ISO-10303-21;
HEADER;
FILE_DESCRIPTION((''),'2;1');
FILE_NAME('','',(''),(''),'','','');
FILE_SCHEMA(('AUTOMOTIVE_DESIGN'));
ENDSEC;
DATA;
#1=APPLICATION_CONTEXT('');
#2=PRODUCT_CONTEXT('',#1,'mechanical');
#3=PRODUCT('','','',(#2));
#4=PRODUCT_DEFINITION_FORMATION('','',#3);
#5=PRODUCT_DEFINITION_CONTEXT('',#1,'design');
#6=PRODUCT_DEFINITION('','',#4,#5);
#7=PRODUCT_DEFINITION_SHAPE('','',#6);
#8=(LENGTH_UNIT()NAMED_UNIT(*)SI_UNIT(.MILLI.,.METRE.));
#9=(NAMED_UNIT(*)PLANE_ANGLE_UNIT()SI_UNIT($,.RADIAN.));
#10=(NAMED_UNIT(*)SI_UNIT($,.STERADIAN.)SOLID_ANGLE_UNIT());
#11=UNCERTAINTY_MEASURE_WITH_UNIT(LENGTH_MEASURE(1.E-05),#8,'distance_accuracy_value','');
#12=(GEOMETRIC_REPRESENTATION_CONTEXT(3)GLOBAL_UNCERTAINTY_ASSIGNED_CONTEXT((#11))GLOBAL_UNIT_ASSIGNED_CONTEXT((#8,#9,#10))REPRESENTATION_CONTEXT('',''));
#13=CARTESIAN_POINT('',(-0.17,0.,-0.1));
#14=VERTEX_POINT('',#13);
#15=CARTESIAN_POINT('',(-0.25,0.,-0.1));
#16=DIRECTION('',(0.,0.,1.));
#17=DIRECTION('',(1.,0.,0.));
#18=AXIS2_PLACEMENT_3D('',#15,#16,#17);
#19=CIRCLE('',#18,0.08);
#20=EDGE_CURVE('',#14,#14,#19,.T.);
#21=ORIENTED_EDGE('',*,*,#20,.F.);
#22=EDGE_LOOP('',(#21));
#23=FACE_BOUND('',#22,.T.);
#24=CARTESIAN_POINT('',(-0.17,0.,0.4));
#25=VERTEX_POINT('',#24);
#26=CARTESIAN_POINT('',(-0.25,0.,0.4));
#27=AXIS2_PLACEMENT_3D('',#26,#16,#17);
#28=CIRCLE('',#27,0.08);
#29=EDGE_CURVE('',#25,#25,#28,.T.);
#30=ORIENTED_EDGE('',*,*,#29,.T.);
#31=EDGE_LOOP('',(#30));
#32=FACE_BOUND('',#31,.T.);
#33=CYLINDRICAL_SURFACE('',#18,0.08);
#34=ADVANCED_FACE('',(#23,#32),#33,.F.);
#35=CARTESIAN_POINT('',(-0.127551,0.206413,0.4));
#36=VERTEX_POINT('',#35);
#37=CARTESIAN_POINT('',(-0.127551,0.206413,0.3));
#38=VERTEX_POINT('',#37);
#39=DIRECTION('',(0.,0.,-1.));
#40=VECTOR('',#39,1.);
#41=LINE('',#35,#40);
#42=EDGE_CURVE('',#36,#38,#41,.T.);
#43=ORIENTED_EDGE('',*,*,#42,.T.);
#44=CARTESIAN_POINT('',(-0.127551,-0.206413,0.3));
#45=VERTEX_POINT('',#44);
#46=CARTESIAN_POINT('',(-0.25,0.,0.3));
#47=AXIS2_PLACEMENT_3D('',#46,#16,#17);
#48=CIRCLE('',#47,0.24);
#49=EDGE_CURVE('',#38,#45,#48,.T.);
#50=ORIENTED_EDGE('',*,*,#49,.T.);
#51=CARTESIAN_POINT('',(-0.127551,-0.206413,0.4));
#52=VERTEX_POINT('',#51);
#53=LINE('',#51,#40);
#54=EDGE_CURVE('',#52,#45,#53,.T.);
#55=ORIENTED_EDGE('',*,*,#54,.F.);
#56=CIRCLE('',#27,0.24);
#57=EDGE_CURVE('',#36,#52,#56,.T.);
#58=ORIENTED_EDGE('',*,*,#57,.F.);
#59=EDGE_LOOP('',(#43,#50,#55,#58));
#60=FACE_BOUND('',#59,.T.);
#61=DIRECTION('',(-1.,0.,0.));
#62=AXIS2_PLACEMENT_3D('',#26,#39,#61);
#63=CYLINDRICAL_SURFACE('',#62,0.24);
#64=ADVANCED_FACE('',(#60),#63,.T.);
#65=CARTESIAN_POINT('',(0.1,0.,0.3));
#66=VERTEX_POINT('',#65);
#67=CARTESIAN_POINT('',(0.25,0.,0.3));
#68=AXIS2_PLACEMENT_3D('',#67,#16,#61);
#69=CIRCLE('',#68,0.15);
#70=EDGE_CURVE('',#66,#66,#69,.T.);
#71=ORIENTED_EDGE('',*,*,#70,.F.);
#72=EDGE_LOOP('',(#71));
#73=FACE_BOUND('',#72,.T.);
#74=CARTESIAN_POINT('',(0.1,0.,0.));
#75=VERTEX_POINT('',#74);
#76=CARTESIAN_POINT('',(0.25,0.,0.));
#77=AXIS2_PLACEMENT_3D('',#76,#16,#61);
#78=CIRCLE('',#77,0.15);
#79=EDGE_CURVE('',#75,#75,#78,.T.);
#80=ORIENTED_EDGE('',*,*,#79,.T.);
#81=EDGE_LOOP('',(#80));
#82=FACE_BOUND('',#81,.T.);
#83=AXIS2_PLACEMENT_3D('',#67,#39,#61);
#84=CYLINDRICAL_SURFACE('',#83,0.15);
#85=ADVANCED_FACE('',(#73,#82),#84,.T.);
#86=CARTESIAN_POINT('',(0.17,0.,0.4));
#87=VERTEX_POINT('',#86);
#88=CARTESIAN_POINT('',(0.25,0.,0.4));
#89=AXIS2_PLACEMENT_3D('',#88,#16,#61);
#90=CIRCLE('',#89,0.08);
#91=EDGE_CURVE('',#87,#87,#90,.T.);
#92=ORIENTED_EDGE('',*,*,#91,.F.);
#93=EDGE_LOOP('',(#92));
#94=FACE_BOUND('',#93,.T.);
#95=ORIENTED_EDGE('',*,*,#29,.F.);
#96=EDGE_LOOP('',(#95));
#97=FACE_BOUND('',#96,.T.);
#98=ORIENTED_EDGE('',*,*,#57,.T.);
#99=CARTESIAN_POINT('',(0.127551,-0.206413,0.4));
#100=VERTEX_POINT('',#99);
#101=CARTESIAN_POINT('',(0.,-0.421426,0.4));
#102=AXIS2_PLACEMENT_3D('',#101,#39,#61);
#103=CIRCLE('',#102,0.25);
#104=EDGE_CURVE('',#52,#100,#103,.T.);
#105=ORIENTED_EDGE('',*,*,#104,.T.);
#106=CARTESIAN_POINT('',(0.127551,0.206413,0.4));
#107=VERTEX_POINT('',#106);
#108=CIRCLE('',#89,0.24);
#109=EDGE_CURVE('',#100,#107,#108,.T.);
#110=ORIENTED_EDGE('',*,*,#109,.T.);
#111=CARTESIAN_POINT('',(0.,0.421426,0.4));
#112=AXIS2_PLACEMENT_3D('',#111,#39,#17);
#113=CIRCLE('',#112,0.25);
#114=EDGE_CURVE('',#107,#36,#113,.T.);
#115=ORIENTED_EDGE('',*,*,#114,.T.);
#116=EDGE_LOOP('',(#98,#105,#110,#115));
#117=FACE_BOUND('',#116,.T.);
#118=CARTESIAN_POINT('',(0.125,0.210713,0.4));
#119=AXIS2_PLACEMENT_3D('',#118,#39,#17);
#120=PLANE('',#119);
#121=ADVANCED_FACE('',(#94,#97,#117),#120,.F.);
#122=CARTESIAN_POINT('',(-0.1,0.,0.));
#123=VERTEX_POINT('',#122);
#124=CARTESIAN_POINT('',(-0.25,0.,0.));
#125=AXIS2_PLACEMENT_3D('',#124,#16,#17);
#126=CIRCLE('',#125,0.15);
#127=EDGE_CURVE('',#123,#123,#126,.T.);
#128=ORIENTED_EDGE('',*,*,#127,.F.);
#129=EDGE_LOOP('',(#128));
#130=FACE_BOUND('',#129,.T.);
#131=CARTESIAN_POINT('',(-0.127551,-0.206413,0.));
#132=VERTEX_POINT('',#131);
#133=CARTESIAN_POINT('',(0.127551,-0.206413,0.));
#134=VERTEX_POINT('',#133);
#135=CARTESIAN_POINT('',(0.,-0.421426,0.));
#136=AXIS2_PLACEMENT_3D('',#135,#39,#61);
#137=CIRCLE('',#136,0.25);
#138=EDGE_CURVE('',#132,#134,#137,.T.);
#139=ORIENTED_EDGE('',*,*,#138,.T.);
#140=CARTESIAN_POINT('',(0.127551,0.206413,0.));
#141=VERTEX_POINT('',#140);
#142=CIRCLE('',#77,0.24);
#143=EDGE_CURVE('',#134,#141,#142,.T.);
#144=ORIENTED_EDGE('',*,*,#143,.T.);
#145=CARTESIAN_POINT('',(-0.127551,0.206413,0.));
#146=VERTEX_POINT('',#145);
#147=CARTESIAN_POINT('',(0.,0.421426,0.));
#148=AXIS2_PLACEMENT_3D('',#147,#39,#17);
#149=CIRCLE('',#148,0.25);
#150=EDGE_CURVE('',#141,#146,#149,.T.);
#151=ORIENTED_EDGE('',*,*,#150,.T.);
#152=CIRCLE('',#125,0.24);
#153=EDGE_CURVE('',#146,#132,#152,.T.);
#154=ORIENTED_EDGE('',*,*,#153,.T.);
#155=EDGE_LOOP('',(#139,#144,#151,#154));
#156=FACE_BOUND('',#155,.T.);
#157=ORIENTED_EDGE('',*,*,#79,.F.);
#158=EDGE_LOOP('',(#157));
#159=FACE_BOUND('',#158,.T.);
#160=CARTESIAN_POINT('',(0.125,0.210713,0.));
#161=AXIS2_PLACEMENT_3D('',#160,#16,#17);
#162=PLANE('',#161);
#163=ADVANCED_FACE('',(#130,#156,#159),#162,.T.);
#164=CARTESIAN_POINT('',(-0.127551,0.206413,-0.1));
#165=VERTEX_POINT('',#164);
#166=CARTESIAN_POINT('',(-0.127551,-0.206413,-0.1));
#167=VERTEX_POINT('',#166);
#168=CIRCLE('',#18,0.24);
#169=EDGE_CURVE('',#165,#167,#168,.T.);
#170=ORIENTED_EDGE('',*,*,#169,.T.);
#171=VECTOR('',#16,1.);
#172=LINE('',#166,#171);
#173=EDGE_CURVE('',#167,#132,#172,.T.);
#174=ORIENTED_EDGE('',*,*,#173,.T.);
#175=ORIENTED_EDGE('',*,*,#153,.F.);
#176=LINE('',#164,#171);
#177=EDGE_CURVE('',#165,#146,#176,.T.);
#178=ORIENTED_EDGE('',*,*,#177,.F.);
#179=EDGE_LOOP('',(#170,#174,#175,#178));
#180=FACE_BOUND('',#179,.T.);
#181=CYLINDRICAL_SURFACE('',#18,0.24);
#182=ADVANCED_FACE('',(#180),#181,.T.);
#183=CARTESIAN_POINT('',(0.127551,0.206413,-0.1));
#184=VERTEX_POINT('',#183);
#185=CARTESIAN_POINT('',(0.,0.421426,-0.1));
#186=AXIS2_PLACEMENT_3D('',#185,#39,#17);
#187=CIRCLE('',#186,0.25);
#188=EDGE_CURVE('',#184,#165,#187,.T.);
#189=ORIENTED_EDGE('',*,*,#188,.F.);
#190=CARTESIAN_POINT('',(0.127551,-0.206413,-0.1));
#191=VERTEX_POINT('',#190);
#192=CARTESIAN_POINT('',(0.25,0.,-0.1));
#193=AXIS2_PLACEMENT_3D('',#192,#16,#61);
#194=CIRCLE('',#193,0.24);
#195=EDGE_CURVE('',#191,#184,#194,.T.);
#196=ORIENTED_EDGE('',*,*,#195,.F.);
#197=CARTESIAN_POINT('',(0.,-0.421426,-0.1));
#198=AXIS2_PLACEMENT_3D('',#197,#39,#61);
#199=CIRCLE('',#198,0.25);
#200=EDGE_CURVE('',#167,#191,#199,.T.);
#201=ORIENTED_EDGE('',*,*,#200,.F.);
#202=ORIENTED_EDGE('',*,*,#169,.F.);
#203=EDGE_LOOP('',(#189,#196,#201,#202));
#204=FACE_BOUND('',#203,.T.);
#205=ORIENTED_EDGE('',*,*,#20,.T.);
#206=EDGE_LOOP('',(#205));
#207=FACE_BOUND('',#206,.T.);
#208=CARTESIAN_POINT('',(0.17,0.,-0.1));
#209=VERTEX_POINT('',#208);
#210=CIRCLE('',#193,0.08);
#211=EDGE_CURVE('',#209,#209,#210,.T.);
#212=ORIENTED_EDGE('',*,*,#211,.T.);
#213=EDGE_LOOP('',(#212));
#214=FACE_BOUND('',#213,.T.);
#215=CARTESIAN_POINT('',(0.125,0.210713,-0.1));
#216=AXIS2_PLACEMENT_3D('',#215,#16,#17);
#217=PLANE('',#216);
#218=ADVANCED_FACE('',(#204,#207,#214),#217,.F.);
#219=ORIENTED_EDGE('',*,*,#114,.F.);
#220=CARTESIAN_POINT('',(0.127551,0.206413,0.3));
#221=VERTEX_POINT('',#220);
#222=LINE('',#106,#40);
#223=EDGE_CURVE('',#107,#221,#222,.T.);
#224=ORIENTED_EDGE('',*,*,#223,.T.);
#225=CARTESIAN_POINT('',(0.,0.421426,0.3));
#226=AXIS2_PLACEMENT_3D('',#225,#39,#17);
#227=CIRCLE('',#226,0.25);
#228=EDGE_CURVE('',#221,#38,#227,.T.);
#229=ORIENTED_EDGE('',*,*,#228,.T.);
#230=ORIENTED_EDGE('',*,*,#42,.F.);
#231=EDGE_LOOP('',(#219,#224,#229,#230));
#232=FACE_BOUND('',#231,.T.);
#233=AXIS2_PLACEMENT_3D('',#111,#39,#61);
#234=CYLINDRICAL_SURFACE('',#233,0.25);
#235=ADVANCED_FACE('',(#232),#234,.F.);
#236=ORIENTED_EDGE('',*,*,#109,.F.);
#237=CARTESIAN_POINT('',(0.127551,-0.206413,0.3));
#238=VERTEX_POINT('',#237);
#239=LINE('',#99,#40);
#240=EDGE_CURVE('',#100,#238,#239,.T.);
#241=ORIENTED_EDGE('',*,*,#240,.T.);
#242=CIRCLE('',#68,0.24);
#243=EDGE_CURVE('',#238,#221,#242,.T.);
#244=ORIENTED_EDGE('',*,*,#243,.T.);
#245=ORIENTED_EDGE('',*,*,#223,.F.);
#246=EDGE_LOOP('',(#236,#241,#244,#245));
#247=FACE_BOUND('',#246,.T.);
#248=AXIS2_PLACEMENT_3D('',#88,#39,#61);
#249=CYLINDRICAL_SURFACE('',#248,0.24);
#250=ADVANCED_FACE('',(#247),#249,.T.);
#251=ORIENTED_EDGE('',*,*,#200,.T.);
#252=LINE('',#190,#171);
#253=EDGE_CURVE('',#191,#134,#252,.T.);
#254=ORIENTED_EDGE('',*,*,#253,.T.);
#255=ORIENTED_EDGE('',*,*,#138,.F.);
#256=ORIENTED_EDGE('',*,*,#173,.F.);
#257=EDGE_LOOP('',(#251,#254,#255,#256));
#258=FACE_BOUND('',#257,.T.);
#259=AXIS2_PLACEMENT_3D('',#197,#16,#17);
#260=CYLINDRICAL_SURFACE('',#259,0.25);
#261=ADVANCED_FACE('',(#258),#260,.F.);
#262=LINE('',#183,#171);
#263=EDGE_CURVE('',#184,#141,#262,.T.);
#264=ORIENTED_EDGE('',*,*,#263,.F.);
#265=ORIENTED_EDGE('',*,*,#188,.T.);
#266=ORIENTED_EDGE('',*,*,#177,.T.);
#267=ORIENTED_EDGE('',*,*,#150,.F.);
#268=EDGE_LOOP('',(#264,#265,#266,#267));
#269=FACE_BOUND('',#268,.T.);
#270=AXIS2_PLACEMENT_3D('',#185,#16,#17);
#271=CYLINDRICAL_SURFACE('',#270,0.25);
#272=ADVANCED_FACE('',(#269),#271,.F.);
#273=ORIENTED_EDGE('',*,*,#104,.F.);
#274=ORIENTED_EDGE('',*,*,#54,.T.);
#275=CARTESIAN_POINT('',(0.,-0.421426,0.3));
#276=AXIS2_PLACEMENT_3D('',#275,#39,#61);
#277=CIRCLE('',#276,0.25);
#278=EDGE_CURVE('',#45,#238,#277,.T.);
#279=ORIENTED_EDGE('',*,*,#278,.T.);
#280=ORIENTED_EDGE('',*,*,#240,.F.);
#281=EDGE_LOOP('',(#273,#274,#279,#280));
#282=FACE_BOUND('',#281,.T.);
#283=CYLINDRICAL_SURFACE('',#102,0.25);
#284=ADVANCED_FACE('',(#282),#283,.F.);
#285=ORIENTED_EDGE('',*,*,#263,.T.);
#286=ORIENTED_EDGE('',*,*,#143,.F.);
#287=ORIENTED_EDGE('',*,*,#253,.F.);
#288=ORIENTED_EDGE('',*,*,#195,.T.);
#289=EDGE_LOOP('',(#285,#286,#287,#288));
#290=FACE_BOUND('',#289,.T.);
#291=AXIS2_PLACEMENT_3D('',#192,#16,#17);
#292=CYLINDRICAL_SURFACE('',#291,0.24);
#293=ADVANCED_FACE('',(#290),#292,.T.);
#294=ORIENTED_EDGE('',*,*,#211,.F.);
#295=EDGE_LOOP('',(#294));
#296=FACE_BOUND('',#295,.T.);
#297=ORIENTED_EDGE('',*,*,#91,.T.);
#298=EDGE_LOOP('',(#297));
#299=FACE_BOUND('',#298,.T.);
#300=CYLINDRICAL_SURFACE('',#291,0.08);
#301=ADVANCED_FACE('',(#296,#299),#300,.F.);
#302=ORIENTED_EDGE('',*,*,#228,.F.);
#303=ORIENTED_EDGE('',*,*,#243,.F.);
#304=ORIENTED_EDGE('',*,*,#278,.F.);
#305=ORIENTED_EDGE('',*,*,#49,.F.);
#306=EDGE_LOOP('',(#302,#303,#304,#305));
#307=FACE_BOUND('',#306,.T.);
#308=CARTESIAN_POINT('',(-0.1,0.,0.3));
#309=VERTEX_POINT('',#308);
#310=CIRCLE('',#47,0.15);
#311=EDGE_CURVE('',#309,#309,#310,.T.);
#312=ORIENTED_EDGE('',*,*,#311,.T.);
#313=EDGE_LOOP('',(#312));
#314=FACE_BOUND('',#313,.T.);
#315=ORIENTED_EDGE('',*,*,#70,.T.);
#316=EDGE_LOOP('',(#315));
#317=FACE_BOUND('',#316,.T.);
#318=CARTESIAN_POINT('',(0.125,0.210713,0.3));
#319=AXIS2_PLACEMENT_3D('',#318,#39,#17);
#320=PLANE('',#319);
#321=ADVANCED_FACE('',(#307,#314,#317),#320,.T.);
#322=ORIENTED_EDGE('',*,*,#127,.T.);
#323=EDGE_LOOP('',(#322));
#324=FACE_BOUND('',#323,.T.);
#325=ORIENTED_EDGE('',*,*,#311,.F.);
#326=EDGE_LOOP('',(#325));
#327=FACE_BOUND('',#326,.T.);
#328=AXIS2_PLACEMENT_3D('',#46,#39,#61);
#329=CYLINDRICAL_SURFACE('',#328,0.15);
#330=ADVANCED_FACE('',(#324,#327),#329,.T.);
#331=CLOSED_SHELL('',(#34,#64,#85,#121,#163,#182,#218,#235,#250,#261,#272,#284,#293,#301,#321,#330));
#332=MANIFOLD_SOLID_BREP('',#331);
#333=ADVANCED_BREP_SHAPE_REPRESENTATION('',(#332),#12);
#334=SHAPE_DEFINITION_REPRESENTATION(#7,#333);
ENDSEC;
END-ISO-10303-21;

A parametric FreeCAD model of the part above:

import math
import FreeCAD as App
import Part
import Sketcher

V = App.Vector
Q = App.Units.Quantity

doc = App.newDocument("Part")
body = doc.addObject("PartDesign::Body", "Body")

sketch1 = doc.addObject("Sketcher::SketchObject", "Sketch")
body.addObject(sketch1)
sketch1.AttachmentSupport = (doc.XY_Plane, [""])
sketch1.MapMode = "FlatFace"
sketch1.addGeometry(Part.ArcOfCircle(Part.Circle(V(-0.25, 0, 0), V(0, 0, 1), 0.24), math.radians(59), math.radians(301)), False)
sketch1.addGeometry(Part.ArcOfCircle(Part.Circle(V(0, -0.42, 0), V(0, 0, 1), 0.25), math.radians(59), math.radians(121)), False)
sketch1.addGeometry(Part.ArcOfCircle(Part.Circle(V(0.25, 0, 0), V(0, 0, 1), 0.24), math.radians(-121), math.radians(121)), False)
sketch1.addGeometry(Part.ArcOfCircle(Part.Circle(V(0, 0.42, 0), V(0, 0, 1), 0.25), math.radians(-121), math.radians(-59)), False)
sketch1.addGeometry(Part.Circle(V(-0.25, 0, 0), V(0, 0, 1), 0.08), False)
sketch1.addGeometry(Part.Circle(V(0.25, 0, 0), V(0, 0, 1), 0.08), False)
sketch1.addConstraint(Sketcher.Constraint("Tangent", 0, 2, 1, 2))
sketch1.addConstraint(Sketcher.Constraint("Tangent", 1, 1, 2, 1))
sketch1.addConstraint(Sketcher.Constraint("Tangent", 2, 2, 3, 2))
sketch1.addConstraint(Sketcher.Constraint("Tangent", 3, 1, 0, 1))
sketch1.addConstraint(Sketcher.Constraint("Coincident", 4, 3, 0, 3))
sketch1.addConstraint(Sketcher.Constraint("Coincident", 5, 3, 2, 3))
sketch1.addConstraint(Sketcher.Constraint("Equal", 0, 2))
sketch1.addConstraint(Sketcher.Constraint("Equal", 1, 3))
sketch1.addConstraint(Sketcher.Constraint("Equal", 4, 5))
sketch1.addConstraint(Sketcher.Constraint("Symmetric", 0, 3, 2, 3, -1, 1))
sketch1.addConstraint(Sketcher.Constraint("PointOnObject", 0, 3, -1))
sketch1.addConstraint(Sketcher.Constraint("Diameter", 4, Q("0.16 mm")))
sketch1.addConstraint(Sketcher.Constraint("Radius", 0, Q("0.24 mm")))
sketch1.addConstraint(Sketcher.Constraint("Radius", 1, Q("0.25 mm")))
sketch1.addConstraint(Sketcher.Constraint("DistanceX", 0, 3, 2, 3, Q("0.5 mm")))
pad1 = doc.addObject("PartDesign::Pad", "Pad")
body.addObject(pad1)
pad1.Profile = sketch1
pad1.Length = 0.1
pad1.Reversed = True

sketch2 = doc.addObject("Sketcher::SketchObject", "Sketch001")
body.addObject(sketch2)
sketch2.AttachmentSupport = (doc.XY_Plane, [""])
sketch2.MapMode = "FlatFace"
sketch2.AttachmentOffset = App.Placement(V(0, 0, 0.3), App.Rotation())
sketch2.addGeometry(Part.Circle(V(-0.25, 0, 0), V(0, 0, 1), 0.15), False)
sketch2.addGeometry(Part.Circle(V(-0.25, 0, 0), V(0, 0, 1), 0.08), False)
sketch2.addGeometry(Part.Circle(V(0.25, 0, 0), V(0, 0, 1), 0.15), False)
sketch2.addGeometry(Part.Circle(V(0.25, 0, 0), V(0, 0, 1), 0.08), False)
sketch2.addConstraint(Sketcher.Constraint("Coincident", 1, 3, 0, 3))
sketch2.addConstraint(Sketcher.Constraint("Coincident", 3, 3, 2, 3))
sketch2.addConstraint(Sketcher.Constraint("Equal", 0, 2))
sketch2.addConstraint(Sketcher.Constraint("Equal", 1, 3))
sketch2.addConstraint(Sketcher.Constraint("Symmetric", 0, 3, 2, 3, -1, 1))
sketch2.addConstraint(Sketcher.Constraint("PointOnObject", 0, 3, -1))
sketch2.addConstraint(Sketcher.Constraint("Diameter", 0, Q("0.3 mm")))
sketch2.addConstraint(Sketcher.Constraint("Diameter", 1, Q("0.16 mm")))
sketch2.addConstraint(Sketcher.Constraint("DistanceX", 0, 3, 2, 3, Q("0.5 mm")))
pad2 = doc.addObject("PartDesign::Pad", "Pad001")
body.addObject(pad2)
pad2.Profile = sketch2
pad2.Length = 0.3
pad2.Reversed = True
doc.recompute()

datumplane = doc.addObject("PartDesign::Plane", "DatumPlane")
body.addObject(datumplane)
datumplane.AttachmentSupport = (doc.XY_Plane, [""])
datumplane.MapMode = "FlatFace"
datumplane.AttachmentOffset = App.Placement(V(0, 0, 0.15), App.Rotation())
mirrored = doc.addObject("PartDesign::Mirrored", "Mirrored")
body.addObject(mirrored)
mirrored.Originals = [pad1]
mirrored.MirrorPlane = (datumplane, [""])
body.Tip = mirrored

doc.recompute()
